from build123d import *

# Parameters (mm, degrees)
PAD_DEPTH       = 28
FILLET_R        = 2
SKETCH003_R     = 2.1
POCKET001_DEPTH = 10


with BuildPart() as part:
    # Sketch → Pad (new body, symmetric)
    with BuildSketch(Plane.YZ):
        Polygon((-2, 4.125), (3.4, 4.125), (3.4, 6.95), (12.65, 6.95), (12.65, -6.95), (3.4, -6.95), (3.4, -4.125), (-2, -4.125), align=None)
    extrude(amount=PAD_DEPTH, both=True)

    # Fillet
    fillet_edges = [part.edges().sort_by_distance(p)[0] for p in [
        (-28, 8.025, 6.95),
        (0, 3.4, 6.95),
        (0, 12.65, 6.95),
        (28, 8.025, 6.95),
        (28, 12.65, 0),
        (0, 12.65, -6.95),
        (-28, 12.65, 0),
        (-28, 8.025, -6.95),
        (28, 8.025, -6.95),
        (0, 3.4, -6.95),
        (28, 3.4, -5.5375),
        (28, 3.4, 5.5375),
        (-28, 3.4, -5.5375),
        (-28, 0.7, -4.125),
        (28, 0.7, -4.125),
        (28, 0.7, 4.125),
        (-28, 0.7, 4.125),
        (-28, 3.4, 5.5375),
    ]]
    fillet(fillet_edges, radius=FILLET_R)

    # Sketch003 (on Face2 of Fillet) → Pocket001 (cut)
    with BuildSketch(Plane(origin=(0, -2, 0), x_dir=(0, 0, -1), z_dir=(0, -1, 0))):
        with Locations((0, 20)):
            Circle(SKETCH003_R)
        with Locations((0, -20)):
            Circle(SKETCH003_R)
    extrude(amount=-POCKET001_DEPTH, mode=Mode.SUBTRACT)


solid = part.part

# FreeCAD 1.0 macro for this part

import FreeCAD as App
import Part
import Sketcher

V = App.Vector
Q = App.Units.Quantity


def edges_at(feature, points):
    """Names of the edges that pass closest to the given points."""
    edges = feature.Shape.Edges
    near = lambda p: min(range(len(edges)), key=lambda i: edges[i].distToShape(Part.Vertex(*p))[0])
    return sorted({f"Edge{near(p) + 1}" for p in points})


def add_polygon(sketch, points):
    """Adds a closed chain of lines whose ends are joined by coincident constraints."""
    first, n = sketch.GeometryCount, len(points)
    for a, b in zip(points, points[1:] + points[:1]):
        sketch.addGeometry(Part.LineSegment(App.Vector(*a, 0), App.Vector(*b, 0)), False)
    for i in range(n):
        sketch.addConstraint(Sketcher.Constraint("Coincident", first + i, 2, first + (i + 1) % n, 1))

doc = App.newDocument("Part")
body = doc.addObject("PartDesign::Body", "Body")

# Sketch on YZ plane
sketch1 = body.newObject("Sketcher::SketchObject", "Sketch")
sketch1.AttachmentSupport = (doc.getObject("YZ_Plane"), [""])
sketch1.MapMode = "FlatFace"
add_polygon(sketch1, [(3.4, 4.1), (-2, 4.1), (-2, -4.1), (3.4, -4.1), (3.4, -7), (12.7, -7), (12.7, 7), (3.4, 7)])  # lines 0-7
sketch1.addConstraint(Sketcher.Constraint("Horizontal", 0))
sketch1.addConstraint(Sketcher.Constraint("Vertical", 1))
sketch1.addConstraint(Sketcher.Constraint("Horizontal", 2))
sketch1.addConstraint(Sketcher.Constraint("Vertical", 3))
sketch1.addConstraint(Sketcher.Constraint("Horizontal", 4))
sketch1.addConstraint(Sketcher.Constraint("Vertical", 5))
sketch1.addConstraint(Sketcher.Constraint("Horizontal", 6))
sketch1.addConstraint(Sketcher.Constraint("Vertical", 7))
sketch1.addConstraint(Sketcher.Constraint("Symmetric", 3, 2, 6, 2, -1))
sketch1.addConstraint(Sketcher.Constraint("Equal", 3, 7))
sketch1.addConstraint(Sketcher.Constraint("DistanceX", 0, 2, 0, 1, Q("5.4 mm")))
sketch1.addConstraint(Sketcher.Constraint("DistanceY", 5, 1, 5, 2, Q("13.9 mm")))
sketch1.addConstraint(Sketcher.Constraint("DistanceX", 0, 2, -1, 1, Q("2 mm")))
sketch1.addConstraint(Sketcher.Constraint("DistanceX", 4, 1, 4, 2, Q("9.25 mm")))
sketch1.addConstraint(Sketcher.Constraint("DistanceY", 1, 2, 1, 1, Q("8.25 mm")))
pad1 = body.newObject("PartDesign::Pad", "Pad")
pad1.Profile = sketch1
pad1.Length = 56
pad1.Midplane = True
doc.recompute()

fillet = body.newObject("PartDesign::Fillet", "Fillet")
fillet.Base = (pad1, edges_at(pad1, [
    (-28, 8.025, 6.95),
    (0, 3.4, 6.95),
    (0, 12.65, 6.95),
    (28, 8.025, 6.95),
    (28, 12.65, 0),
    (0, 12.65, -6.95),
    (-28, 12.65, 0),
    (-28, 8.025, -6.95),
    (28, 8.025, -6.95),
    (0, 3.4, -6.95),
    (28, 3.4, -5.537),
    (28, 3.4, 5.537),
    (-28, 3.4, -5.537),
    (-28, 0.7, -4.125),
    (28, 0.7, -4.125),
    (28, 0.7, 4.125),
    (-28, 0.7, 4.125),
    (-28, 3.4, 5.537),
]))
fillet.Radius = 2

# Sketch on XZ plane
sketch2 = body.newObject("Sketcher::SketchObject", "Sketch001")
sketch2.AttachmentSupport = (doc.getObject("XZ_Plane"), [""])
sketch2.MapMode = "FlatFace"
sketch2.AttachmentOffset = App.Placement(V(0, 0, 2), App.Rotation())
sketch2.addGeometry(Part.Circle(V(20, 0, 0), V(0, 0, 1), 2.1), False)
sketch2.addGeometry(Part.Circle(V(-20, 0, 0), V(0, 0, 1), 2.1), False)
sketch2.addConstraint(Sketcher.Constraint("Equal", 0, 1))
sketch2.addConstraint(Sketcher.Constraint("Symmetric", 0, 3, 1, 3, -1, 1))
sketch2.addConstraint(Sketcher.Constraint("PointOnObject", 0, 3, -1))
sketch2.addConstraint(Sketcher.Constraint("Diameter", 0, Q("4.2 mm")))
sketch2.addConstraint(Sketcher.Constraint("DistanceX", -1, 1, 0, 3, Q("20 mm")))
pocket1 = body.newObject("PartDesign::Pocket", "Pocket")
pocket1.Profile = sketch2
pocket1.Length = 10

doc.recompute()
